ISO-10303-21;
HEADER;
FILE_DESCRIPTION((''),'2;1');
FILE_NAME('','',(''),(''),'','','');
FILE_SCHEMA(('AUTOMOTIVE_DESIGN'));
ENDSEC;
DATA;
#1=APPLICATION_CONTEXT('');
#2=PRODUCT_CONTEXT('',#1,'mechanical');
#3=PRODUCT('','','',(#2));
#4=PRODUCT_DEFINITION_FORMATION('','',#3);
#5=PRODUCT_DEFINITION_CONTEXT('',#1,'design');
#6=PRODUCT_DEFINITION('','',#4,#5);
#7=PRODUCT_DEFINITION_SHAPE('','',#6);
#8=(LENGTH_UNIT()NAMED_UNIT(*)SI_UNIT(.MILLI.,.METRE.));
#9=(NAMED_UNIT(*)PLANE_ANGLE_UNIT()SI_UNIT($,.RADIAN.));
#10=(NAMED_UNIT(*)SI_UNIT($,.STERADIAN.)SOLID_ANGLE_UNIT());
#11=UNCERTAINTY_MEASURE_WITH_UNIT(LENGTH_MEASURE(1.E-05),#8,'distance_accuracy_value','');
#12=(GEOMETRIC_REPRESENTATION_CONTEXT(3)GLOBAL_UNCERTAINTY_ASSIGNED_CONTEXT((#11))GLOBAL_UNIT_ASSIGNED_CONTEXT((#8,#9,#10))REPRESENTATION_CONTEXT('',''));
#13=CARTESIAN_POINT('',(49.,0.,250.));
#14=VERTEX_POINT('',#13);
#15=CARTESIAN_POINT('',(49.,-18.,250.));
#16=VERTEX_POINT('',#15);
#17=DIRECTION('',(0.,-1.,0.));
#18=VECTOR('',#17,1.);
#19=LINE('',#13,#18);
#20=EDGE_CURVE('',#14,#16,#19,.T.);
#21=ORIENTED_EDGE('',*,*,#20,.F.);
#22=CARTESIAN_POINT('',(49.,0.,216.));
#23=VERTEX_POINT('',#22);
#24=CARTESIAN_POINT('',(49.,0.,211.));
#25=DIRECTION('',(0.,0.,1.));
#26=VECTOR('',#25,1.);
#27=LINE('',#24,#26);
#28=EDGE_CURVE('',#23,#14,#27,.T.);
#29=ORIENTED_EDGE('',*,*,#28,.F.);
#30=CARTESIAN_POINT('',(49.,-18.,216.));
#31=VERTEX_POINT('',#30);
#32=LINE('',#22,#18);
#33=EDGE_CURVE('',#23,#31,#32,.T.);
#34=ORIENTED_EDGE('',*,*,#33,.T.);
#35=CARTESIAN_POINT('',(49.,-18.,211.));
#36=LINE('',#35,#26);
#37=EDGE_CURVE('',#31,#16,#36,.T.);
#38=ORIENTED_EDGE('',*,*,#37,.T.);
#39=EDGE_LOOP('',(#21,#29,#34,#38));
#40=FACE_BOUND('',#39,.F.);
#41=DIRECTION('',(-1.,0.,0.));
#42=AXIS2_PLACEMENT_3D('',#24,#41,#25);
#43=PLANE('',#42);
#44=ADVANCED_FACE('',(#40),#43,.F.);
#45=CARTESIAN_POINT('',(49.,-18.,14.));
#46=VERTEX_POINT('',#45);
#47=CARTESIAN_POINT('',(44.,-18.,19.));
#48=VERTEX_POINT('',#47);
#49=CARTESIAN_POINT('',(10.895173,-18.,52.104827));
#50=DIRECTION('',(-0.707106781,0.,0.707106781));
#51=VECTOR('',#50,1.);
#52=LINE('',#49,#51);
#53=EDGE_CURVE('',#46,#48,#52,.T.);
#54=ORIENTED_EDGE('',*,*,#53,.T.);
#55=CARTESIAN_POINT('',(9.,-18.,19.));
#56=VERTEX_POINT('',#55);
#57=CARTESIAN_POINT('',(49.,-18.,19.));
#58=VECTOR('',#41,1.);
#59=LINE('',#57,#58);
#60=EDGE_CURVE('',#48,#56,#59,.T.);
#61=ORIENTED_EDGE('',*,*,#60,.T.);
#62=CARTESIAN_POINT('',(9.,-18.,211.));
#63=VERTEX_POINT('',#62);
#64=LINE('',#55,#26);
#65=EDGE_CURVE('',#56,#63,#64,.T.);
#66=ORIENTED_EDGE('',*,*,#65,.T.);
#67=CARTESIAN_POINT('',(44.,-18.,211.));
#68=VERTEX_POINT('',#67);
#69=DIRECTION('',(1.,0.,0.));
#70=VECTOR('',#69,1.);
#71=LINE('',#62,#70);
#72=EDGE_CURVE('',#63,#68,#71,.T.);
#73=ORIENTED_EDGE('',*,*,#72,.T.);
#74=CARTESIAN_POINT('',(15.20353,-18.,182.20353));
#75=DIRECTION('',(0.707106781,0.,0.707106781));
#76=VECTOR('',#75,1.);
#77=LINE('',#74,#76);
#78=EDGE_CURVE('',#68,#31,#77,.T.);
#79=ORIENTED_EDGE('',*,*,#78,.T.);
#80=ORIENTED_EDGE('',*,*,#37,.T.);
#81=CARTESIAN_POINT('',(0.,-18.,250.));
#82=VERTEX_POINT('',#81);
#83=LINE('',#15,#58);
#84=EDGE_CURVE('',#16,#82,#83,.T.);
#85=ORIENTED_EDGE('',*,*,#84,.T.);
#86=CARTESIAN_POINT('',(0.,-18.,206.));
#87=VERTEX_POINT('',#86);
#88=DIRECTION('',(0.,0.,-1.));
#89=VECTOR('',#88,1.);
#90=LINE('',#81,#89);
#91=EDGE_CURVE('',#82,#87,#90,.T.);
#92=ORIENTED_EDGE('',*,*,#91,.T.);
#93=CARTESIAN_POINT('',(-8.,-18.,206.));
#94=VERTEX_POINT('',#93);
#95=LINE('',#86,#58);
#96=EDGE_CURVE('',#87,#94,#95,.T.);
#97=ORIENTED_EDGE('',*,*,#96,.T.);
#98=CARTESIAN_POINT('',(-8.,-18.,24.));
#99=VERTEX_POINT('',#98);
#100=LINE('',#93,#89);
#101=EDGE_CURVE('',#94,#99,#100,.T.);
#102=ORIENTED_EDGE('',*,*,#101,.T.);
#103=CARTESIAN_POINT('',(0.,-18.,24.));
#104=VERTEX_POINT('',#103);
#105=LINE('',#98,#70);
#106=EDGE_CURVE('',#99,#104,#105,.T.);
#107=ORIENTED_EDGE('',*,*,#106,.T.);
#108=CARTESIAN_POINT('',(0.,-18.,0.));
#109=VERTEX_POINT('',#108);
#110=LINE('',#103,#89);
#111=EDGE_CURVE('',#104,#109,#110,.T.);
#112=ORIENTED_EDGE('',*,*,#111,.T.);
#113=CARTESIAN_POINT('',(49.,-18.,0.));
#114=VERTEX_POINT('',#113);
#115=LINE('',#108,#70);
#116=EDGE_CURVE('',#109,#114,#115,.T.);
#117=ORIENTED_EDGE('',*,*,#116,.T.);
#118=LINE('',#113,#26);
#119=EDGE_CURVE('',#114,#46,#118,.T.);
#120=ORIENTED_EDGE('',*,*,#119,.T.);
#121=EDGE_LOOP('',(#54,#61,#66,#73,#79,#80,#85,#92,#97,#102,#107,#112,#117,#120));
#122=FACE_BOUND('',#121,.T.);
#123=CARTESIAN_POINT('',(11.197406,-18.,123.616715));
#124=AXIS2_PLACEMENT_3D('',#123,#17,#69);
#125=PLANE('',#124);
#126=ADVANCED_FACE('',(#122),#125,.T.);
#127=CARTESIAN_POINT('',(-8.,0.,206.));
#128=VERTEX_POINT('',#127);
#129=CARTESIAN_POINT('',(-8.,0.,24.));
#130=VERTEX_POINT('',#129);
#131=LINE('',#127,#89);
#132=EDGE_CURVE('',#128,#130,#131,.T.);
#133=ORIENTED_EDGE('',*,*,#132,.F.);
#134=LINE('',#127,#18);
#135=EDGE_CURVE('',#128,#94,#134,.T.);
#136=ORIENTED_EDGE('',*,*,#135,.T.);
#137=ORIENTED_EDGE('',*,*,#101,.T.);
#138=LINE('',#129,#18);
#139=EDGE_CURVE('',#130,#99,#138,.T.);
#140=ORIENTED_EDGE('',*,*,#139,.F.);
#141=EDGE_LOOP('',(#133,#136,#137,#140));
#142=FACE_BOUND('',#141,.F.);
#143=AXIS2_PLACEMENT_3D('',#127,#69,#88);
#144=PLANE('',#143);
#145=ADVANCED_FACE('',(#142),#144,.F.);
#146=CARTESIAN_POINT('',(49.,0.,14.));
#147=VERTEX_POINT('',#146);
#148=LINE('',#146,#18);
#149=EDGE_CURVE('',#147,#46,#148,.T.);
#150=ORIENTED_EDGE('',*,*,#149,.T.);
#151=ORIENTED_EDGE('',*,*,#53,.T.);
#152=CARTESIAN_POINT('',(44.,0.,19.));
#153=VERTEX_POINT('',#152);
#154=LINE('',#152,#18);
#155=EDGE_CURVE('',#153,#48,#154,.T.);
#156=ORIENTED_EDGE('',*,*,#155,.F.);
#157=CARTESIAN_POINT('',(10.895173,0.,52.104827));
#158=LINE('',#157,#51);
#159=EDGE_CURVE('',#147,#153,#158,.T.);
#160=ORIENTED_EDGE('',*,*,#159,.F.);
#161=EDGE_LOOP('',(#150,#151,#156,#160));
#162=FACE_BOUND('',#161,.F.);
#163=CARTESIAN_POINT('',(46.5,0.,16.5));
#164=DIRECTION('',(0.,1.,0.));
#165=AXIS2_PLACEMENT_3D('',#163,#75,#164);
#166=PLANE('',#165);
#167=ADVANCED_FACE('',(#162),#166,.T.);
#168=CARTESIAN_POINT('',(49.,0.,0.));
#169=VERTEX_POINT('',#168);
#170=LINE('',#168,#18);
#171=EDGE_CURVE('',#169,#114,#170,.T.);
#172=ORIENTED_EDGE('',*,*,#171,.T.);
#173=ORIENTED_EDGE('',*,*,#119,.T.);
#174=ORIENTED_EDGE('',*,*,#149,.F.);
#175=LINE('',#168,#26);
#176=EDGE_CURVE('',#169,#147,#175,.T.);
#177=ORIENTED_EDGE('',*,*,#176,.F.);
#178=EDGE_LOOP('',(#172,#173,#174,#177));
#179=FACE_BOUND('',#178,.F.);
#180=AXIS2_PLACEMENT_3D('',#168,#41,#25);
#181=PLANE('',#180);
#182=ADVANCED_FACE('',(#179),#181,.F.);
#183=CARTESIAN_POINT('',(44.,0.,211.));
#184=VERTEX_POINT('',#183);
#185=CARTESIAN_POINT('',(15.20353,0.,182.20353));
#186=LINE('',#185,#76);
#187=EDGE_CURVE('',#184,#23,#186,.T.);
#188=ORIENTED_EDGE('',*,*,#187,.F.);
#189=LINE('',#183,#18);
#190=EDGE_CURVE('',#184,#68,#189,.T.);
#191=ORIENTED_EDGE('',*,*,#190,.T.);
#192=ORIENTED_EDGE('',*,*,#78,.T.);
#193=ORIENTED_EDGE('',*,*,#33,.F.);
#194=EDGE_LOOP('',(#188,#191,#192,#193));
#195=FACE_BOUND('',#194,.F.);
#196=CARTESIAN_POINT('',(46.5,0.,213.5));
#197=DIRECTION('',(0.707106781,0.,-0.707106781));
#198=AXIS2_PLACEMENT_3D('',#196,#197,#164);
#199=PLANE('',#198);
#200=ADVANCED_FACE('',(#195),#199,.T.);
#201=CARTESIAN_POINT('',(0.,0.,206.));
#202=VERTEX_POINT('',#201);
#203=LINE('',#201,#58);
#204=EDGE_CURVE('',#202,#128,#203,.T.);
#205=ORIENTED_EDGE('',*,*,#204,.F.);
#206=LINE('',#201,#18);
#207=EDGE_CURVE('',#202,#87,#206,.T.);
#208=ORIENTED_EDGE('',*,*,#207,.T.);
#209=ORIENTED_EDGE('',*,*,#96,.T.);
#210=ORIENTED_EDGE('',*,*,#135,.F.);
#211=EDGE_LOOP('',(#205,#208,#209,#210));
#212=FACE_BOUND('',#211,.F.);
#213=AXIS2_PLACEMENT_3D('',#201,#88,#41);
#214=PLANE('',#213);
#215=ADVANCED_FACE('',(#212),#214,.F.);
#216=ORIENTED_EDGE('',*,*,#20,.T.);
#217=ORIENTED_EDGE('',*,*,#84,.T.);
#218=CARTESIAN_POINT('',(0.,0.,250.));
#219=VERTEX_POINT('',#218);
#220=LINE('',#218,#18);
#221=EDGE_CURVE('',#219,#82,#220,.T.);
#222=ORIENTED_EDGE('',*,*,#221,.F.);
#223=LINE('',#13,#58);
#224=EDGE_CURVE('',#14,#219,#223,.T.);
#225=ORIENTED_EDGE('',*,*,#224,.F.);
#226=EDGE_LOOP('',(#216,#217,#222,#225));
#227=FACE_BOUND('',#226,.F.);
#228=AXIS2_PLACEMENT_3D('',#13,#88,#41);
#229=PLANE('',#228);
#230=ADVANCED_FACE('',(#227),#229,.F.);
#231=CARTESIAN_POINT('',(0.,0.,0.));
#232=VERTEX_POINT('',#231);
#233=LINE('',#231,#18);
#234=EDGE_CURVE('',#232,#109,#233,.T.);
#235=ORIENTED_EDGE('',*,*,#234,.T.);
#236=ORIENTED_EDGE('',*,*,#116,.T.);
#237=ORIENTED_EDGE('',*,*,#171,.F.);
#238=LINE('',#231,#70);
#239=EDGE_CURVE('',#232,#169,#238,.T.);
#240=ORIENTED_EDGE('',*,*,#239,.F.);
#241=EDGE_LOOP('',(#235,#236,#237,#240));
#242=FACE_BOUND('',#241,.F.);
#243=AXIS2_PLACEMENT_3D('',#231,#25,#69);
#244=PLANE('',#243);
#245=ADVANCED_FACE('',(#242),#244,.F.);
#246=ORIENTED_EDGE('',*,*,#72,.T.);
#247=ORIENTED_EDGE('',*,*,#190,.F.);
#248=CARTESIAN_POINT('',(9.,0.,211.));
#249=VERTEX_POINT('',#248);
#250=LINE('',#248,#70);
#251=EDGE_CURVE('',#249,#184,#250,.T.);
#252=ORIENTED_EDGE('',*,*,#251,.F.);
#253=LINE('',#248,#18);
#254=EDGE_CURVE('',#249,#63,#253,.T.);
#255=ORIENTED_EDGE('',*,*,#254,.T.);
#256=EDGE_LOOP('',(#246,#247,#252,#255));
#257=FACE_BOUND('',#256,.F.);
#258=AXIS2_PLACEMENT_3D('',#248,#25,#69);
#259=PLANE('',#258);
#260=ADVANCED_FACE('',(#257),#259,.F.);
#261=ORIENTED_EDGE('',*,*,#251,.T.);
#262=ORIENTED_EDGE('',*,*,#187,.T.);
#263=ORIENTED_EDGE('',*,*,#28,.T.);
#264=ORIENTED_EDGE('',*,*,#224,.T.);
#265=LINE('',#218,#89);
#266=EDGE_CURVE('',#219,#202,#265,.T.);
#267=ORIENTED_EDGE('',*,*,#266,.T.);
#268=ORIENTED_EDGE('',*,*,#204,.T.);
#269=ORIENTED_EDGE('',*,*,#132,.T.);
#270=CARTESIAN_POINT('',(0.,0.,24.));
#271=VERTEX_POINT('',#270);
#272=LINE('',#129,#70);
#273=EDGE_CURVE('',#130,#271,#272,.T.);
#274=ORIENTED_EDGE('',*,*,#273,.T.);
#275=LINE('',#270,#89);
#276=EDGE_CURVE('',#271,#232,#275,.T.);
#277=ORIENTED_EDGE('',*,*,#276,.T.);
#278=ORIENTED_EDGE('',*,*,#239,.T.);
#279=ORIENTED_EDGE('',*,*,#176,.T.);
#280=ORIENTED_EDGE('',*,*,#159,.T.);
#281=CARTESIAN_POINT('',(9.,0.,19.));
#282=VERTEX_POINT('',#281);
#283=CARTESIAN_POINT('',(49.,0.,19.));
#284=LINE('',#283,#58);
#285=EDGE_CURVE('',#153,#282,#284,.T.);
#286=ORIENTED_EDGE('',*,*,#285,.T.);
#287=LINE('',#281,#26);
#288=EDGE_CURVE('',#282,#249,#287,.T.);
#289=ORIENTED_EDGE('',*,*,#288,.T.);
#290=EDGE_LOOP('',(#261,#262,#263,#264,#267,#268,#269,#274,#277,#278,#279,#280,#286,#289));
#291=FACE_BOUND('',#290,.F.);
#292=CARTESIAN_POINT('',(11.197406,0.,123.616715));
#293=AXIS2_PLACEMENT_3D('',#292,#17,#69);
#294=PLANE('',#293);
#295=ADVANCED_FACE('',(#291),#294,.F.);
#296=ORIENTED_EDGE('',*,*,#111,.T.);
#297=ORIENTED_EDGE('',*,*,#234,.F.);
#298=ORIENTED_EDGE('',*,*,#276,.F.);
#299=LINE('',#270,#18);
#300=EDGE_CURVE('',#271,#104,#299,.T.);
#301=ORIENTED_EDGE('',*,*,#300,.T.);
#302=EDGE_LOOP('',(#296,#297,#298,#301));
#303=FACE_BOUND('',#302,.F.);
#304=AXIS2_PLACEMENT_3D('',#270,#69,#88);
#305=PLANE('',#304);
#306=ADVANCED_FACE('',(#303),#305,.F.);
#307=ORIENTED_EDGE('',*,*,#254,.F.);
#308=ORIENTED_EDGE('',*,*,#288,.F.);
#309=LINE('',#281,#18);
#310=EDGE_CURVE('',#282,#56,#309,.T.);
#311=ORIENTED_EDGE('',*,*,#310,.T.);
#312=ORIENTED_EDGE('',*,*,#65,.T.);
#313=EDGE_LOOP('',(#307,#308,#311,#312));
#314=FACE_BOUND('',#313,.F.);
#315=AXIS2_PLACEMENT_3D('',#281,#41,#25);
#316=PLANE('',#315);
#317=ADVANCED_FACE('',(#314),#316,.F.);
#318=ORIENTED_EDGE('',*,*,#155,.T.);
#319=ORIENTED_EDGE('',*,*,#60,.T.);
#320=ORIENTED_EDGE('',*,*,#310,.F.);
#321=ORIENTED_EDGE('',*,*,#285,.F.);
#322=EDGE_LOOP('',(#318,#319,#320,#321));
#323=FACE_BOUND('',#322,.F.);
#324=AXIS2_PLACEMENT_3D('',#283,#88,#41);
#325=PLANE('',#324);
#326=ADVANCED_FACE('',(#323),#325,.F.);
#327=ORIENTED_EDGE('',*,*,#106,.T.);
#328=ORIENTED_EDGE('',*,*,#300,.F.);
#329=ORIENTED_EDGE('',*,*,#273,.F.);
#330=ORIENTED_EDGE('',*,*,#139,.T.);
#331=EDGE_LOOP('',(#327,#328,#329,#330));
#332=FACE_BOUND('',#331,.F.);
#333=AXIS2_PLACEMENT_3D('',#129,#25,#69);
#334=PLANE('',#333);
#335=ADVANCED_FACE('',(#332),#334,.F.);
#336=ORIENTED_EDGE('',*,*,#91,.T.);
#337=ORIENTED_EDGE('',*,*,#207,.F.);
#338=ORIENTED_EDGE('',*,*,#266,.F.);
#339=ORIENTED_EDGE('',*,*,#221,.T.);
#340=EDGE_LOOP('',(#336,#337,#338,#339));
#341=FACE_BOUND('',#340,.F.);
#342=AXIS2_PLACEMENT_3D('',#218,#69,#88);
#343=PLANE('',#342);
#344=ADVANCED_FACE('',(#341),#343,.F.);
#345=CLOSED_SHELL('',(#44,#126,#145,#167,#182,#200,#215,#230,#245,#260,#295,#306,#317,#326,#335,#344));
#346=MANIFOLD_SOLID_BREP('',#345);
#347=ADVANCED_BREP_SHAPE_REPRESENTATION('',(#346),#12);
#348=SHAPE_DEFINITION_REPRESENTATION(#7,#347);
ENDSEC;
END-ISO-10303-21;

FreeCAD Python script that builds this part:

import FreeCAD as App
import Part
import Sketcher
from FreeCAD import Vector
Q = App.Units.Quantity


def edges_at(feature, points):
    """Names of the edges that pass closest to the given points."""
    edges = feature.Shape.Edges
    near = lambda p: min(range(len(edges)), key=lambda i: edges[i].distToShape(Part.Vertex(*p))[0])
    return sorted({f"Edge{near(p) + 1}" for p in points})


def add_polygon(sketch, points):
    """Adds a closed chain of lines whose ends are joined by coincident constraints."""
    first, n = sketch.GeometryCount, len(points)
    for a, b in zip(points, points[1:] + points[:1]):
        sketch.addGeometry(Part.LineSegment(App.Vector(*a, 0), App.Vector(*b, 0)), False)
    for i in range(n):
        sketch.addConstraint(Sketcher.Constraint("Coincident", first + i, 2, first + (i + 1) % n, 1))

doc = App.newDocument("Part")
body = doc.addObject("PartDesign::Body", "Body")

sketch1 = body.newObject("Sketcher::SketchObject", "Sketch")
sketch1.AttachmentSupport = (doc.getObject("XZ_Plane"), [""])
sketch1.MapMode = "FlatFace"
add_polygon(sketch1, [(0, 24), (0, 0), (49, 0), (49, 19), (9, 19), (9, 211), (49, 211), (49, 250), (0, 250), (0, 206), (-8, 206), (-8, 24)])
sketch1.addConstraint([
    Sketcher.Constraint("Vertical", 0),
    Sketcher.Constraint("Horizontal", 1),
    Sketcher.Constraint("Vertical", 2),
    Sketcher.Constraint("Horizontal", 3),
    Sketcher.Constraint("Vertical", 4),
    Sketcher.Constraint("Horizontal", 5),
    Sketcher.Constraint("Vertical", 6),
    Sketcher.Constraint("Horizontal", 7),
    Sketcher.Constraint("Vertical", 8),
    Sketcher.Constraint("Horizontal", 9),
    Sketcher.Constraint("Vertical", 10),
    Sketcher.Constraint("Horizontal", 11),
    Sketcher.Constraint("Coincident", 0, 2, -1, 1),
    Sketcher.Constraint("PointOnObject", 7, 2, -2),
    Sketcher.Constraint("Vertical", 2, 2, 5, 2),
    Sketcher.Constraint("DistanceX", 1, 1, 1, 2, Q("49 mm")),
    Sketcher.Constraint("DistanceX", 3, 2, 3, 1, Q("40 mm")),
    Sketcher.Constraint("DistanceX", 9, 2, 9, 1, Q("8 mm")),
    Sketcher.Constraint("DistanceY", 0, 2, 0, 1, Q("24 mm")),
    Sketcher.Constraint("DistanceY", 2, 1, 2, 2, Q("19 mm")),
    Sketcher.Constraint("DistanceY", 4, 1, 4, 2, Q("192 mm")),
    Sketcher.Constraint("DistanceY", 6, 1, 6, 2, Q("39 mm")),
    Sketcher.Constraint("DistanceY", 8, 2, 8, 1, Q("44 mm")),
])
pad1 = body.newObject("PartDesign::Pad", "Pad")
pad1.Profile = sketch1
pad1.Length = 18
doc.recompute()

chamfer = body.newObject("PartDesign::Chamfer", "Chamfer")
chamfer.Base = (pad1, edges_at(pad1, [(49, -9, 211), (49, -9, 19)]))
chamfer.Size = 5

doc.recompute()
